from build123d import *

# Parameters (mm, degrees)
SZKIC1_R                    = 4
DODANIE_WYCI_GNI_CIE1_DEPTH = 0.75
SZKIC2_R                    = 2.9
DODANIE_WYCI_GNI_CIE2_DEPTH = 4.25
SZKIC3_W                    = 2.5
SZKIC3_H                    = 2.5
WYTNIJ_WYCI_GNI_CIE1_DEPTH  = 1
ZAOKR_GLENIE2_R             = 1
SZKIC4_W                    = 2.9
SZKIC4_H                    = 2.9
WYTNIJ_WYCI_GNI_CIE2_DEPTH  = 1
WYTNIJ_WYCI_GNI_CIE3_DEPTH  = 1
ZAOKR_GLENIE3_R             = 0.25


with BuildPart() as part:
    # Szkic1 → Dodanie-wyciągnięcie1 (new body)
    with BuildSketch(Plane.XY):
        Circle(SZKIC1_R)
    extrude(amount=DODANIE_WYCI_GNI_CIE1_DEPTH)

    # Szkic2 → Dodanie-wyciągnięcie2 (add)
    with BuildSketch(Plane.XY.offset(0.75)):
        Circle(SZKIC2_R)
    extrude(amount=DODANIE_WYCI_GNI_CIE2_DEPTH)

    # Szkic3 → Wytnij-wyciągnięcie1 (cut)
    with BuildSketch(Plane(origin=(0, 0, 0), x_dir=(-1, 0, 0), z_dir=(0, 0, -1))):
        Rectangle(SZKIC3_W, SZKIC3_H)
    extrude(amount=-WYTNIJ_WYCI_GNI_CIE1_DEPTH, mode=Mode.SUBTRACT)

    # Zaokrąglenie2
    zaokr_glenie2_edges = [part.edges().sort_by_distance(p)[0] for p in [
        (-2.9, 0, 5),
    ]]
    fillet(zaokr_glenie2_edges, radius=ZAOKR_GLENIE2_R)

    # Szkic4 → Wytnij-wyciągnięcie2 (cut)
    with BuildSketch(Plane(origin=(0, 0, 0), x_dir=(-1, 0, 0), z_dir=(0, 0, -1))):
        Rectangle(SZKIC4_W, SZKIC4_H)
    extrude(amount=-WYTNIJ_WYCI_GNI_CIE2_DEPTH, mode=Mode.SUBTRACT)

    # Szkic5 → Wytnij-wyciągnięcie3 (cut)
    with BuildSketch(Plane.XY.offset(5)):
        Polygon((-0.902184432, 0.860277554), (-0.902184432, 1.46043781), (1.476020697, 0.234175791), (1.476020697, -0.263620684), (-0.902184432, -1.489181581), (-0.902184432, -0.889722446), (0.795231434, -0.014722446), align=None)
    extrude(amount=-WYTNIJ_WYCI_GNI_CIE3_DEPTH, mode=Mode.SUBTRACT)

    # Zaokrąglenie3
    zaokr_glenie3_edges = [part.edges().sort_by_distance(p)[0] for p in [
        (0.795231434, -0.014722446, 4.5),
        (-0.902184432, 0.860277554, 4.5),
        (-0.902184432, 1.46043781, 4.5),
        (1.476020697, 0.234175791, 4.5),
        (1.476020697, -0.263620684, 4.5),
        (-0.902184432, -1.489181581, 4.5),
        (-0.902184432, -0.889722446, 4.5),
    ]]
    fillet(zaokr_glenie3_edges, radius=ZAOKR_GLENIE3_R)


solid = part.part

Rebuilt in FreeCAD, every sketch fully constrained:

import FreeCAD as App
import Part
import Sketcher

V = App.Vector


def edges_at(feature, points):
    """Names of the edges that pass closest to the given points."""
    edges = feature.Shape.Edges
    near = lambda p: min(range(len(edges)), key=lambda i: edges[i].distToShape(Part.Vertex(*p))[0])
    return sorted({f"Edge{near(p) + 1}" for p in points})


def add_polygon(sketch, points):
    """Adds a closed chain of lines whose ends are joined by coincident constraints."""
    first, n = sketch.GeometryCount, len(points)
    for a, b in zip(points, points[1:] + points[:1]):
        sketch.addGeometry(Part.LineSegment(App.Vector(*a, 0), App.Vector(*b, 0)), False)
    for i in range(n):
        sketch.addConstraint(Sketcher.Constraint("Coincident", first + i, 2, first + (i + 1) % n, 1))

doc = App.newDocument("Part")
body = doc.addObject("PartDesign::Body", "Body")

# Sketch on XY plane
sketch1 = body.newObject("Sketcher::SketchObject", "Sketch")
sketch1.AttachmentSupport = (doc.getObject("XY_Plane"), [""])
sketch1.MapMode = "FlatFace"
sketch1.addGeometry(Part.Circle(V(0, 0, 0), V(0, 0, 1), 4), False)
sketch1.addConstraint(Sketcher.Constraint("Coincident", 0, 3, -1, 1))
sketch1.addConstraint(Sketcher.Constraint("Diameter", 0, 8.0))
pad1 = body.newObject("PartDesign::Pad", "Pad")
pad1.Profile = sketch1
pad1.Length = 0.75

# Sketch on XY plane
sketch2 = body.newObject("Sketcher::SketchObject", "Sketch001")
sketch2.AttachmentSupport = (doc.getObject("XY_Plane"), [""])
sketch2.MapMode = "FlatFace"
sketch2.AttachmentOffset = App.Placement(V(0, 0, 0.75), App.Rotation())
sketch2.addGeometry(Part.Circle(V(0, 0, 0), V(0, 0, 1), 2.9), False)
sketch2.addConstraint(Sketcher.Constraint("Coincident", 0, 3, -1, 1))
sketch2.addConstraint(Sketcher.Constraint("Diameter", 0, 5.8))
pad2 = body.newObject("PartDesign::Pad", "Pad001")
pad2.Profile = sketch2
pad2.Length = 4.25

# Sketch on XY plane
sketch3 = body.newObject("Sketcher::SketchObject", "Sketch002")
sketch3.AttachmentSupport = (doc.getObject("XY_Plane"), [""])
sketch3.MapMode = "FlatFace"
add_polygon(sketch3, [(1.2, 1.2), (1.2, -1.2), (-1.2, -1.2), (-1.2, 1.2)])  # lines 0-3
sketch3.addConstraint(Sketcher.Constraint("Vertical", 0))
sketch3.addConstraint(Sketcher.Constraint("Horizontal", 1))
sketch3.addConstraint(Sketcher.Constraint("Vertical", 2))
sketch3.addConstraint(Sketcher.Constraint("Horizontal", 3))
sketch3.addConstraint(Sketcher.Constraint("Symmetric", 0, 2, 2, 2, -1, 1))
sketch3.addConstraint(Sketcher.Constraint("Equal", 3, 0))
sketch3.addConstraint(Sketcher.Constraint("DistanceX", 1, 2, 1, 1, 2.5))
pocket1 = body.newObject("PartDesign::Pocket", "Pocket")
pocket1.Profile = sketch3
pocket1.Length = 1
pocket1.Reversed = True
doc.recompute()

fillet = body.newObject("PartDesign::Fillet", "Fillet")
fillet.Base = (pocket1, edges_at(pocket1, [(-2.9, 0, 5)]))
fillet.Radius = 1

# Sketch on XY plane
sketch4 = body.newObject("Sketcher::SketchObject", "Sketch003")
sketch4.AttachmentSupport = (doc.getObject("XY_Plane"), [""])
sketch4.MapMode = "FlatFace"
add_polygon(sketch4, [(1.4, 1.4), (1.4, -1.4), (-1.4, -1.4), (-1.4, 1.4)])  # lines 0-3
sketch4.addConstraint(Sketcher.Constraint("Vertical", 0))
sketch4.addConstraint(Sketcher.Constraint("Horizontal", 1))
sketch4.addConstraint(Sketcher.Constraint("Vertical", 2))
sketch4.addConstraint(Sketcher.Constraint("Horizontal", 3))
sketch4.addConstraint(Sketcher.Constraint("Symmetric", 0, 2, 2, 2, -1, 1))
sketch4.addConstraint(Sketcher.Constraint("Equal", 3, 0))
sketch4.addConstraint(Sketcher.Constraint("DistanceX", 1, 2, 1, 1, 2.9))
pocket2 = body.newObject("PartDesign::Pocket", "Pocket001")
pocket2.Profile = sketch4
pocket2.Length = 1
pocket2.Reversed = True

# Sketch on XY plane
sketch5 = body.newObject("Sketcher::SketchObject", "Sketch004")
sketch5.AttachmentSupport = (doc.getObject("XY_Plane"), [""])
sketch5.MapMode = "FlatFace"
sketch5.AttachmentOffset = App.Placement(V(0, 0, 5), App.Rotation())
add_polygon(sketch5, [(-0.9, 1.46), (-0.9, 0.86), (0.8, -0.01), (-0.9, -0.89), (-0.9, -1.49), (1.48, -0.26), (1.48, 0.23)])  # lines 0-6
sketch5.addConstraint(Sketcher.Constraint("Vertical", 0))
sketch5.addConstraint(Sketcher.Constraint("Vertical", 3))
sketch5.addConstraint(Sketcher.Constraint("Vertical", 5))
sketch5.addConstraint(Sketcher.Constraint("Vertical", 0, 2, 2, 2))
sketch5.addConstraint(Sketcher.Constraint("Equal", 1, 2))
sketch5.addConstraint(Sketcher.Constraint("DistanceY", 2, 2, 0, 2, 1.75))
sketch5.addConstraint(Sketcher.Constraint("DistanceY", 0, 2, 0, 1, 0.60016))
sketch5.addConstraint(Sketcher.Constraint("DistanceY", 3, 2, 3, 1, 0.599459))
sketch5.addConstraint(Sketcher.Constraint("DistanceY", 4, 2, 1, 2, 0.248898))
sketch5.addConstraint(Sketcher.Constraint("DistanceY", 1, 2, 5, 2, 0.248898))
sketch5.addConstraint(Sketcher.Constraint("Distance", 1, 1.909672))
sketch5.addConstraint(Sketcher.Constraint("Distance", 6, 2.675739))
sketch5.addConstraint(Sketcher.Constraint("DistanceX", -1, 1, 1, 2, 0.795231))
sketch5.addConstraint(Sketcher.Constraint("DistanceY", 3, 2, -1, 1, 1.489182))
pocket3 = body.newObject("PartDesign::Pocket", "Pocket002")
pocket3.Profile = sketch5
pocket3.Length = 1
doc.recompute()

fillet2 = body.newObject("PartDesign::Fillet", "Fillet001")
fillet2.Base = (pocket3, edges_at(pocket3, [
    (0.795, -0.015, 4.5),
    (-0.902, 0.86, 4.5),
    (-0.902, 1.46, 4.5),
    (1.476, 0.234, 4.5),
    (1.476, -0.264, 4.5),
    (-0.902, -1.489, 4.5),
    (-0.902, -0.89, 4.5),
]))
fillet2.Radius = 0.25

doc.recompute()
